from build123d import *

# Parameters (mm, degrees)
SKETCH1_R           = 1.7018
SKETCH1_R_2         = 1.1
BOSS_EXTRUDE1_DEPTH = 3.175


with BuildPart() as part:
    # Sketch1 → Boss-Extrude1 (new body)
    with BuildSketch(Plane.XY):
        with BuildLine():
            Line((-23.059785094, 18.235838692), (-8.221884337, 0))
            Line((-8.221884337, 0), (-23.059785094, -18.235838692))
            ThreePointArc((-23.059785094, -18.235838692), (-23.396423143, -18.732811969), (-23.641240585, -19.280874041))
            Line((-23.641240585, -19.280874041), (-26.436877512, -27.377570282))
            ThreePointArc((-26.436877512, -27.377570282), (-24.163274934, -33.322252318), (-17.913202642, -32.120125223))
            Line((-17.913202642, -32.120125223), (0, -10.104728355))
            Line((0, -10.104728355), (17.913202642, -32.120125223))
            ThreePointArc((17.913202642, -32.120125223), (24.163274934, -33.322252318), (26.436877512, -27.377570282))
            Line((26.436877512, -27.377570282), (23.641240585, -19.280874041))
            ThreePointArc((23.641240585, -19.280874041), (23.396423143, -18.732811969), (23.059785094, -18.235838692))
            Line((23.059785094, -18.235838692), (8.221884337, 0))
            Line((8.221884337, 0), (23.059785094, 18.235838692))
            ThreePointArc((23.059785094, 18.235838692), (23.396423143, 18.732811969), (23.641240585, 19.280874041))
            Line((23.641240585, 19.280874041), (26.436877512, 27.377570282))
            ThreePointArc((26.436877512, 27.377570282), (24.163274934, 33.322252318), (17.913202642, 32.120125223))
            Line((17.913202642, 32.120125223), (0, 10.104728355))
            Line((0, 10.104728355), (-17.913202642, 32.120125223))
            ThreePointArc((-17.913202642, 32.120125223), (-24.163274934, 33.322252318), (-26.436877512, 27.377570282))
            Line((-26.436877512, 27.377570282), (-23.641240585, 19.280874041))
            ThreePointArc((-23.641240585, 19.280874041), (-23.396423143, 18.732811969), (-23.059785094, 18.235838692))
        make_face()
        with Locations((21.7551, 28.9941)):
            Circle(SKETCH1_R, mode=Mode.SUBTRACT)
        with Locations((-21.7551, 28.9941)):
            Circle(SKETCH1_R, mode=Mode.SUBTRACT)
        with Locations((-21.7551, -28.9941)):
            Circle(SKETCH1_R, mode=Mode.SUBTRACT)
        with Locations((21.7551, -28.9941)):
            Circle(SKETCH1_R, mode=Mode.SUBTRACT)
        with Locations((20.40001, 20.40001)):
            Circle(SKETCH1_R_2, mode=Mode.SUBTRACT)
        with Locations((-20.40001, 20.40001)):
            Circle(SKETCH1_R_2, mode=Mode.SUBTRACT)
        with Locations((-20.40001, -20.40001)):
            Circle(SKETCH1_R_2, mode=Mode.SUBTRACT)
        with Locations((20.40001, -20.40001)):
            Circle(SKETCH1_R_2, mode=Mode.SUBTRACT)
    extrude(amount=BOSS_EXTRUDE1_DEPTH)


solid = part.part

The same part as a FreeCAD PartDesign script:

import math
import FreeCAD as App
import Part
import Sketcher

V = App.Vector
Q = App.Units.Quantity

doc = App.newDocument("Part")
body = doc.addObject("PartDesign::Body", "Body")

sketch1 = body.newObject("Sketcher::SketchObject", "Sketch")
sketch1.AttachmentSupport = (doc.getObject("XY_Plane"), [""])
sketch1.MapMode = "FlatFace"
sketch1.addGeometry([
    Part.LineSegment(V(-23.1, 18.2, 0), V(-8.2, 0, 0)),
    Part.LineSegment(V(-8.2, 0, 0), V(-23.1, -18.2, 0)),
    Part.ArcOfCircle(Part.Circle(V(-20.4, -20.4, 0), V(0, 0, 1), 3.4), math.radians(141), math.radians(161)),
    Part.LineSegment(V(-23.6, -19.3, 0), V(-26.4, -27.4, 0)),
    Part.ArcOfCircle(Part.Circle(V(-21.8, -29, 0), V(0, 0, 1), 5), math.radians(161), math.radians(321)),
    Part.LineSegment(V(-17.9, -32.1, 0), V(0, -10.1, 0)),
    Part.LineSegment(V(0, -10.1, 0), V(17.9, -32.1, 0)),
    Part.ArcOfCircle(Part.Circle(V(21.8, -29, 0), V(0, 0, 1), 5), math.radians(-141), math.radians(19)),
    Part.LineSegment(V(26.4, -27.4, 0), V(23.6, -19.3, 0)),
    Part.ArcOfCircle(Part.Circle(V(20.4, -20.4, 0), V(0, 0, 1), 3.4), math.radians(19), math.radians(39)),
    Part.LineSegment(V(23.1, -18.2, 0), V(8.2, 0, 0)),
    Part.LineSegment(V(8.2, 0, 0), V(23.1, 18.2, 0)),
    Part.ArcOfCircle(Part.Circle(V(20.4, 20.4, 0), V(0, 0, 1), 3.4), math.radians(-39), math.radians(-19)),
    Part.LineSegment(V(23.6, 19.3, 0), V(26.4, 27.4, 0)),
    Part.ArcOfCircle(Part.Circle(V(21.8, 29, 0), V(0, 0, 1), 5), math.radians(-19), math.radians(141)),
    Part.LineSegment(V(17.9, 32.1, 0), V(0, 10.1, 0)),
    Part.LineSegment(V(0, 10.1, 0), V(-17.9, 32.1, 0)),
    Part.ArcOfCircle(Part.Circle(V(-21.8, 29, 0), V(0, 0, 1), 5), math.radians(39), math.radians(199)),
    Part.LineSegment(V(-26.4, 27.4, 0), V(-23.6, 19.3, 0)),
    Part.ArcOfCircle(Part.Circle(V(-20.4, 20.4, 0), V(0, 0, 1), 3.4), math.radians(-161), math.radians(-141)),
    Part.Circle(V(-21.8, -29, 0), V(0, 0, 1), 1.7),
    Part.Circle(V(-20.4, -20.4, 0), V(0, 0, 1), 1.1),
    Part.Circle(V(21.8, -29, 0), V(0, 0, 1), 1.7),
    Part.Circle(V(20.4, -20.4, 0), V(0, 0, 1), 1.1),
    Part.Circle(V(-20.4, 20.4, 0), V(0, 0, 1), 1.1),
    Part.Circle(V(-21.8, 29, 0), V(0, 0, 1), 1.7),
    Part.Circle(V(20.4, 20.4, 0), V(0, 0, 1), 1.1),
    Part.Circle(V(21.8, 29, 0), V(0, 0, 1), 1.7),
], False)
sketch1.addConstraint([
    Sketcher.Constraint("Coincident", 0, 2, 1, 1),
    Sketcher.Constraint("Tangent", 1, 2, 2, 1),
    Sketcher.Constraint("Tangent", 2, 2, 3, 1),
    Sketcher.Constraint("Tangent", 3, 2, 4, 1),
    Sketcher.Constraint("Tangent", 4, 2, 5, 1),
    Sketcher.Constraint("Coincident", 5, 2, 6, 1),
    Sketcher.Constraint("Tangent", 6, 2, 7, 1),
    Sketcher.Constraint("Tangent", 7, 2, 8, 1),
    Sketcher.Constraint("Tangent", 8, 2, 9, 1),
    Sketcher.Constraint("Tangent", 9, 2, 10, 1),
    Sketcher.Constraint("Coincident", 10, 2, 11, 1),
    Sketcher.Constraint("Tangent", 11, 2, 12, 1),
    Sketcher.Constraint("Tangent", 12, 2, 13, 1),
    Sketcher.Constraint("Tangent", 13, 2, 14, 1),
    Sketcher.Constraint("Tangent", 14, 2, 15, 1),
    Sketcher.Constraint("Coincident", 15, 2, 16, 1),
    Sketcher.Constraint("Tangent", 16, 2, 17, 1),
    Sketcher.Constraint("Tangent", 17, 2, 18, 1),
    Sketcher.Constraint("Tangent", 18, 2, 19, 1),
    Sketcher.Constraint("Tangent", 19, 2, 0, 1),
    Sketcher.Constraint("Coincident", 20, 3, 4, 3),
    Sketcher.Constraint("Coincident", 21, 3, 2, 3),
    Sketcher.Constraint("Coincident", 22, 3, 7, 3),
    Sketcher.Constraint("Coincident", 23, 3, 9, 3),
    Sketcher.Constraint("Coincident", 24, 3, 19, 3),
    Sketcher.Constraint("Coincident", 25, 3, 17, 3),
    Sketcher.Constraint("Coincident", 26, 3, 12, 3),
    Sketcher.Constraint("Coincident", 27, 3, 14, 3),
    Sketcher.Constraint("Equal", 4, 7),
    Sketcher.Constraint("Equal", 2, 9),
    Sketcher.Constraint("Equal", 9, 12),
    Sketcher.Constraint("Equal", 7, 14),
    Sketcher.Constraint("Equal", 14, 17),
    Sketcher.Constraint("Equal", 12, 19),
    Sketcher.Constraint("Equal", 20, 22),
    Sketcher.Constraint("Equal", 21, 23),
    Sketcher.Constraint("Equal", 23, 24),
    Sketcher.Constraint("Equal", 22, 25),
    Sketcher.Constraint("Equal", 24, 26),
    Sketcher.Constraint("Equal", 25, 27),
    Sketcher.Constraint("Symmetric", 2, 3, 12, 3, -1, 1),
    Sketcher.Constraint("Symmetric", 4, 3, 14, 3, -1, 1),
    Sketcher.Constraint("Symmetric", 7, 3, 17, 3, -1, 1),
    Sketcher.Constraint("Symmetric", 9, 3, 19, 3, -1, 1),
    Sketcher.Constraint("Symmetric", 0, 2, 10, 2, -1, 1),
    Sketcher.Constraint("Symmetric", 5, 2, 15, 2, -1, 1),
    Sketcher.Constraint("Symmetric", 4, 3, 7, 3, -2),
    Sketcher.Constraint("Symmetric", 2, 3, 9, 3, -2),
    Sketcher.Constraint("PointOnObject", 0, 2, -1),
    Sketcher.Constraint("PointOnObject", 5, 2, -2),
    Sketcher.Constraint("Parallel", 1, 5),
    Sketcher.Constraint("Diameter", 20, Q("0.134 in")),
    Sketcher.Constraint("Radius", 2, Q("0.135 in")),
    Sketcher.Constraint("Radius", 4, Q("0.195 in")),
    Sketcher.Constraint("Diameter", 21, 2.2),
    Sketcher.Constraint("DistanceX", 4, 3, 7, 3, Q("1.713 in")),
    Sketcher.Constraint("DistanceY", 7, 3, 14, 3, Q("2.283 in")),
    Sketcher.Constraint("DistanceX", 2, 3, 9, 3, Q("1.6063 in")),
    Sketcher.Constraint("DistanceY", 9, 3, 12, 3, Q("1.6063 in")),
    Sketcher.Constraint("Distance", 5, 28.382398),
])
pad1 = body.newObject("PartDesign::Pad", "Pad")
pad1.Profile = sketch1
pad1.Length = Q("0.125 in")

doc.recompute()
